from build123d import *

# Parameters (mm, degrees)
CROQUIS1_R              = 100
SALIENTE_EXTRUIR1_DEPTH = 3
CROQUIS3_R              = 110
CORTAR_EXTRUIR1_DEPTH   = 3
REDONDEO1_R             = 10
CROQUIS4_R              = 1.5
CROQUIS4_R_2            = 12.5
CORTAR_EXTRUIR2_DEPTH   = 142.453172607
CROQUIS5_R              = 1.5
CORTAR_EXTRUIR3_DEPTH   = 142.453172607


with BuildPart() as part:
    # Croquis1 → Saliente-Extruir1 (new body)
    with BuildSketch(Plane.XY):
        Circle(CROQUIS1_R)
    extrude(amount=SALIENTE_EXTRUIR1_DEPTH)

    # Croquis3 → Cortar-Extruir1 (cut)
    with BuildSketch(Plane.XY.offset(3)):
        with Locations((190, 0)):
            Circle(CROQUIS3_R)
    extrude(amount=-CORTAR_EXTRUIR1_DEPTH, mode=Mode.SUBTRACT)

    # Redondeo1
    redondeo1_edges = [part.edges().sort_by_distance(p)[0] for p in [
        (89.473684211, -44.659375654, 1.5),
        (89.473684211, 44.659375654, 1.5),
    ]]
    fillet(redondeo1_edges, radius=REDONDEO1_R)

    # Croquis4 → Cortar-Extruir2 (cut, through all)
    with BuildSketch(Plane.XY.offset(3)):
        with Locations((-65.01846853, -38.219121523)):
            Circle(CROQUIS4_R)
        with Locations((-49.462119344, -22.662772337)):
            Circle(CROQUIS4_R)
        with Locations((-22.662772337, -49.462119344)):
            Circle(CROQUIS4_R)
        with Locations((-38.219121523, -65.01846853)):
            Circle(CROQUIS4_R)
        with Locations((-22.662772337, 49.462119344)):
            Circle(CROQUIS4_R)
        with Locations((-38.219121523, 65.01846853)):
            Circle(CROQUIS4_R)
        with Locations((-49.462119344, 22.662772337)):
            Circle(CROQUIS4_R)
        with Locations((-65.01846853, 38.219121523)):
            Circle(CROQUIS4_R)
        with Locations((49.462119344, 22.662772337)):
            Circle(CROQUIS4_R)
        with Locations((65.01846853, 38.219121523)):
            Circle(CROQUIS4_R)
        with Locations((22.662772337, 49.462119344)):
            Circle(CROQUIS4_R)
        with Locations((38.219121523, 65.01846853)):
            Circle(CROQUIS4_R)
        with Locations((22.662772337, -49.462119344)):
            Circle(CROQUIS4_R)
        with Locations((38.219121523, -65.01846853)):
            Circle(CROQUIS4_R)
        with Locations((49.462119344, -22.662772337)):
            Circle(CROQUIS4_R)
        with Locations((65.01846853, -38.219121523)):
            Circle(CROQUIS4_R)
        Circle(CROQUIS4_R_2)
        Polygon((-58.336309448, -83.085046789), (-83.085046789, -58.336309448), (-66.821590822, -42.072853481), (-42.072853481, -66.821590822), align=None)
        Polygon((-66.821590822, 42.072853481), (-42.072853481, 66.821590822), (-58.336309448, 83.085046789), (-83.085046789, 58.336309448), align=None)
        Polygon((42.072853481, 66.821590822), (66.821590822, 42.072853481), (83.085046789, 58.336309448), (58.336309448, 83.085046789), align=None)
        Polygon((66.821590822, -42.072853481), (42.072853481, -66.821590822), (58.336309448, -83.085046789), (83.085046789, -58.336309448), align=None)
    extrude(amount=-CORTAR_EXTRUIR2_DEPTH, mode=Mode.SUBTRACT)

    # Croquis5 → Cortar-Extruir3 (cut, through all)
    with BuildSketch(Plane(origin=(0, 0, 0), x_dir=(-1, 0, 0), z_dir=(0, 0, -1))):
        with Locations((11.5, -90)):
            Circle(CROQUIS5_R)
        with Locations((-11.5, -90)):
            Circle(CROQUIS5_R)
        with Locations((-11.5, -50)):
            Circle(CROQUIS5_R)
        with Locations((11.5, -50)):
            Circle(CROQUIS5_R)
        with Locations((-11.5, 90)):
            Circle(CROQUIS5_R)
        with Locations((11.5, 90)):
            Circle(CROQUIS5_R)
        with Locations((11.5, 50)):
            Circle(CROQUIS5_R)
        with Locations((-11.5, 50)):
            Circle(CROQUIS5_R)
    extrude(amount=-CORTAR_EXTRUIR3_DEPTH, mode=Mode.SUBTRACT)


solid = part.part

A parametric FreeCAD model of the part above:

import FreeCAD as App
import Part
import Sketcher
from FreeCAD import Vector
Q = App.Units.Quantity


def edges_at(feature, points):
    """Names of the edges that pass closest to the given points."""
    edges = feature.Shape.Edges
    near = lambda p: min(range(len(edges)), key=lambda i: edges[i].distToShape(Part.Vertex(*p))[0])
    return sorted({f"Edge{near(p) + 1}" for p in points})


def add_polygon(sketch, points):
    """Adds a closed chain of lines whose ends are joined by coincident constraints."""
    first, n = sketch.GeometryCount, len(points)
    for a, b in zip(points, points[1:] + points[:1]):
        sketch.addGeometry(Part.LineSegment(App.Vector(*a, 0), App.Vector(*b, 0)), False)
    for i in range(n):
        sketch.addConstraint(Sketcher.Constraint("Coincident", first + i, 2, first + (i + 1) % n, 1))

doc = App.newDocument("Part")
params = doc.addObject("Spreadsheet::Sheet", "Params")
for row, (alias, value) in enumerate([
    ("sketch1_diameter", "200 mm"),
    ("pad1_length", "3 mm"),
    ("sketch2_diameter", "220 mm"),
    ("pocket1_length", "3 mm"),
    ("fillet_radius", "10 mm"),
    ("sketch3_diameter", "3 mm"),
    ("sketch3_diameter2", "25 mm"),
    ("sketch3_length", "35 mm"),
    ("sketch3_length2", "23 mm"),
    ("sketch4_diameter", "3 mm"),
], start=1):
    params.set(f"A{row}", alias)
    params.set(f"B{row}", "=" + value)
    params.setAlias(f"B{row}", alias)

body = doc.addObject("PartDesign::Body", "Body")

# Sketch on XY plane
sketch1 = doc.addObject("Sketcher::SketchObject", "Sketch")
body.addObject(sketch1)
sketch1.AttachmentSupport = (doc.XY_Plane, [""])
sketch1.MapMode = "FlatFace"
sketch1.addGeometry(Part.Circle(Vector(0, 0, 0), Vector(0, 0, 1), 100), False)
sketch1.addConstraint(Sketcher.Constraint("Coincident", 0, 3, -1, 1))
sketch1.addConstraint(Sketcher.Constraint("Diameter", 0, Q("200 mm")))
sketch1.setExpression("Constraints[1]", "Params.sketch1_diameter")
pad1 = doc.addObject("PartDesign::Pad", "Pad")
body.addObject(pad1)
pad1.Profile = sketch1
pad1.setExpression("Length", "Params.pad1_length")

# Sketch on XY plane
sketch2 = doc.addObject("Sketcher::SketchObject", "Sketch001")
body.addObject(sketch2)
sketch2.AttachmentSupport = (doc.XY_Plane, [""])
sketch2.MapMode = "FlatFace"
sketch2.AttachmentOffset = App.Placement(Vector(0, 0, 3), App.Rotation())
sketch2.addGeometry(Part.Circle(Vector(190, 0, 0), Vector(0, 0, 1), 110), False)
sketch2.addConstraint(Sketcher.Constraint("PointOnObject", 0, 3, -1))
sketch2.addConstraint(Sketcher.Constraint("Diameter", 0, Q("220 mm")))
sketch2.addConstraint(Sketcher.Constraint("DistanceX", -1, 1, 0, 3, Q("190 mm")))
sketch2.setExpression("Constraints[1]", "Params.sketch2_diameter")
pocket1 = doc.addObject("PartDesign::Pocket", "Pocket")
body.addObject(pocket1)
pocket1.Profile = sketch2
pocket1.setExpression("Length", "Params.pocket1_length")
doc.recompute()

fillet = doc.addObject("PartDesign::Fillet", "Fillet")
body.addObject(fillet)
fillet.Base = (pocket1, edges_at(pocket1, [(89.474, -44.659, 1.5), (89.474, 44.659, 1.5)]))
fillet.setExpression("Radius", "Params.fillet_radius")

# Sketch on XY plane
sketch3 = doc.addObject("Sketcher::SketchObject", "Sketch002")
body.addObject(sketch3)
sketch3.AttachmentSupport = (doc.XY_Plane, [""])
sketch3.MapMode = "FlatFace"
sketch3.AttachmentOffset = App.Placement(Vector(0, 0, 3), App.Rotation())
sketch3.addGeometry(Part.Circle(Vector(-65, -38.2, 0), Vector(0, 0, 1), 1.5), False)  # 0
sketch3.addGeometry(Part.Circle(Vector(-49.5, -22.7, 0), Vector(0, 0, 1), 1.5), False)  # 1
sketch3.addGeometry(Part.Circle(Vector(-22.7, -49.5, 0), Vector(0, 0, 1), 1.5), False)  # 2
sketch3.addGeometry(Part.Circle(Vector(-38.2, -65, 0), Vector(0, 0, 1), 1.5), False)  # 3
sketch3.addGeometry(Part.Circle(Vector(-22.7, 49.5, 0), Vector(0, 0, 1), 1.5), False)  # 4
sketch3.addGeometry(Part.Circle(Vector(-38.2, 65, 0), Vector(0, 0, 1), 1.5), False)  # 5
sketch3.addGeometry(Part.Circle(Vector(-49.5, 22.7, 0), Vector(0, 0, 1), 1.5), False)  # 6
sketch3.addGeometry(Part.Circle(Vector(-65, 38.2, 0), Vector(0, 0, 1), 1.5), False)  # 7
sketch3.addGeometry(Part.Circle(Vector(49.5, 22.7, 0), Vector(0, 0, 1), 1.5), False)  # 8
sketch3.addGeometry(Part.Circle(Vector(65, 38.2, 0), Vector(0, 0, 1), 1.5), False)  # 9
sketch3.addGeometry(Part.Circle(Vector(22.7, 49.5, 0), Vector(0, 0, 1), 1.5), False)  # 10
sketch3.addGeometry(Part.Circle(Vector(38.2, 65, 0), Vector(0, 0, 1), 1.5), False)  # 11
sketch3.addGeometry(Part.Circle(Vector(22.7, -49.5, 0), Vector(0, 0, 1), 1.5), False)  # 12
sketch3.addGeometry(Part.Circle(Vector(38.2, -65, 0), Vector(0, 0, 1), 1.5), False)  # 13
sketch3.addGeometry(Part.Circle(Vector(49.5, -22.7, 0), Vector(0, 0, 1), 1.5), False)  # 14
sketch3.addGeometry(Part.Circle(Vector(65, -38.2, 0), Vector(0, 0, 1), 1.5), False)  # 15
sketch3.addGeometry(Part.Circle(Vector(0, 0, 0), Vector(0, 0, 1), 12.5), False)  # 16
add_polygon(sketch3, [(-83.1, -58.3), (-58.3, -83.1), (-42.1, -66.8), (-66.8, -42.1)])  # lines 17-20
add_polygon(sketch3, [(-66.8, 42.1), (-42.1, 66.8), (-58.3, 83.1), (-83.1, 58.3)])  # lines 21-24
add_polygon(sketch3, [(42.1, 66.8), (66.8, 42.1), (83.1, 58.3), (58.3, 83.1)])  # lines 25-28
add_polygon(sketch3, [(66.8, -42.1), (42.1, -66.8), (58.3, -83.1), (83.1, -58.3)])  # lines 29-32
sketch3.addConstraint(Sketcher.Constraint("Coincident", 16, 3, -1, 1))
sketch3.addConstraint(Sketcher.Constraint("Equal", 0, 1))
sketch3.addConstraint(Sketcher.Constraint("Equal", 1, 2))
sketch3.addConstraint(Sketcher.Constraint("Equal", 2, 3))
sketch3.addConstraint(Sketcher.Constraint("Equal", 3, 4))
sketch3.addConstraint(Sketcher.Constraint("Equal", 4, 5))
sketch3.addConstraint(Sketcher.Constraint("Equal", 5, 6))
sketch3.addConstraint(Sketcher.Constraint("Equal", 6, 7))
sketch3.addConstraint(Sketcher.Constraint("Equal", 7, 8))
sketch3.addConstraint(Sketcher.Constraint("Equal", 8, 9))
sketch3.addConstraint(Sketcher.Constraint("Equal", 9, 10))
sketch3.addConstraint(Sketcher.Constraint("Equal", 10, 11))
sketch3.addConstraint(Sketcher.Constraint("Equal", 11, 12))
sketch3.addConstraint(Sketcher.Constraint("Equal", 12, 13))
sketch3.addConstraint(Sketcher.Constraint("Equal", 13, 14))
sketch3.addConstraint(Sketcher.Constraint("Equal", 14, 15))
sketch3.addConstraint(Sketcher.Constraint("Symmetric", 1, 3, 8, 3, -1, 1))
sketch3.addConstraint(Sketcher.Constraint("Symmetric", 0, 3, 9, 3, -1, 1))
sketch3.addConstraint(Sketcher.Constraint("Symmetric", 2, 3, 10, 3, -1, 1))
sketch3.addConstraint(Sketcher.Constraint("Symmetric", 3, 3, 11, 3, -1, 1))
sketch3.addConstraint(Sketcher.Constraint("Symmetric", 4, 3, 12, 3, -1, 1))
sketch3.addConstraint(Sketcher.Constraint("Symmetric", 5, 3, 13, 3, -1, 1))
sketch3.addConstraint(Sketcher.Constraint("Symmetric", 6, 3, 14, 3, -1, 1))
sketch3.addConstraint(Sketcher.Constraint("Symmetric", 7, 3, 15, 3, -1, 1))
sketch3.addConstraint(Sketcher.Constraint("Symmetric", 19, 2, 25, 2, -1, 1))
sketch3.addConstraint(Sketcher.Constraint("Symmetric", 20, 2, 26, 2, -1, 1))
sketch3.addConstraint(Sketcher.Constraint("Symmetric", 17, 2, 27, 2, -1, 1))
sketch3.addConstraint(Sketcher.Constraint("Symmetric", 18, 2, 28, 2, -1, 1))
sketch3.addConstraint(Sketcher.Constraint("Symmetric", 21, 2, 29, 2, -1, 1))
sketch3.addConstraint(Sketcher.Constraint("Symmetric", 22, 2, 30, 2, -1, 1))
sketch3.addConstraint(Sketcher.Constraint("Symmetric", 23, 2, 31, 2, -1, 1))
sketch3.addConstraint(Sketcher.Constraint("Symmetric", 24, 2, 32, 2, -1, 1))
sketch3.addConstraint(Sketcher.Constraint("Symmetric", 6, 3, 8, 3, -2))
sketch3.addConstraint(Sketcher.Constraint("Symmetric", 7, 3, 9, 3, -2))
sketch3.addConstraint(Sketcher.Constraint("Symmetric", 4, 3, 10, 3, -2))
sketch3.addConstraint(Sketcher.Constraint("Symmetric", 5, 3, 11, 3, -2))
sketch3.addConstraint(Sketcher.Constraint("Symmetric", 24, 2, 25, 2, -2))
sketch3.addConstraint(Sketcher.Constraint("Symmetric", 23, 2, 26, 2, -2))
sketch3.addConstraint(Sketcher.Constraint("Symmetric", 22, 2, 27, 2, -2))
sketch3.addConstraint(Sketcher.Constraint("Symmetric", 21, 2, 28, 2, -2))
sketch3.addConstraint(Sketcher.Constraint("Perpendicular", 17, 18))
sketch3.addConstraint(Sketcher.Constraint("Perpendicular", 18, 19))
sketch3.addConstraint(Sketcher.Constraint("Perpendicular", 19, 20))
sketch3.addConstraint(Sketcher.Constraint("Parallel", 20, 21))
sketch3.addConstraint(Sketcher.Constraint("Diameter", 0, Q("3 mm")))
sketch3.addConstraint(Sketcher.Constraint("Diameter", 16, Q("25 mm")))
sketch3.addConstraint(Sketcher.Constraint("Distance", 17, Q("35 mm")))
sketch3.addConstraint(Sketcher.Constraint("Distance", 18, Q("23 mm")))
sketch3.addConstraint(Sketcher.Constraint("DistanceX", 0, 3, -1, 1, Q("65.018469 mm")))
sketch3.addConstraint(Sketcher.Constraint("DistanceY", 0, 3, -1, 1, Q("38.219122 mm")))
sketch3.addConstraint(Sketcher.Constraint("DistanceX", 1, 3, -1, 1, Q("49.462119 mm")))
sketch3.addConstraint(Sketcher.Constraint("DistanceY", 2, 3, -1, 1, Q("49.462119 mm")))
sketch3.addConstraint(Sketcher.Constraint("DistanceX", 3, 3, -1, 1, Q("38.219122 mm")))
sketch3.addConstraint(Sketcher.Constraint("DistanceY", 3, 3, -1, 1, Q("65.018469 mm")))
sketch3.addConstraint(Sketcher.Constraint("DistanceX", 17, 2, -1, 1, Q("58.336309 mm")))
sketch3.addConstraint(Sketcher.Constraint("DistanceY", 18, 2, -1, 1, Q("66.821591 mm")))
sketch3.addConstraint(Sketcher.Constraint("DistanceY", 0, 3, 1, 3, Q("15.556349 mm")))
sketch3.addConstraint(Sketcher.Constraint("DistanceX", 3, 3, 2, 3, Q("15.556349 mm")))
sketch3.setExpression("Constraints[60]", "Params.sketch3_diameter")
sketch3.setExpression("Constraints[61]", "Params.sketch3_diameter2")
sketch3.setExpression("Constraints[62]", "Params.sketch3_length")
sketch3.setExpression("Constraints[63]", "Params.sketch3_length2")
pocket2 = doc.addObject("PartDesign::Pocket", "Pocket001")
body.addObject(pocket2)
pocket2.Profile = sketch3
pocket2.Type = "ThroughAll"

# Sketch on XY plane
sketch4 = doc.addObject("Sketcher::SketchObject", "Sketch003")
body.addObject(sketch4)
sketch4.AttachmentSupport = (doc.XY_Plane, [""])
sketch4.MapMode = "FlatFace"
sketch4.addGeometry(Part.Circle(Vector(-11.5, -90, 0), Vector(0, 0, 1), 1.5), False)
sketch4.addGeometry(Part.Circle(Vector(11.5, -90, 0), Vector(0, 0, 1), 1.5), False)
sketch4.addGeometry(Part.Circle(Vector(11.5, -50, 0), Vector(0, 0, 1), 1.5), False)
sketch4.addGeometry(Part.Circle(Vector(-11.5, -50, 0), Vector(0, 0, 1), 1.5), False)
sketch4.addGeometry(Part.Circle(Vector(11.5, 90, 0), Vector(0, 0, 1), 1.5), False)
sketch4.addGeometry(Part.Circle(Vector(-11.5, 90, 0), Vector(0, 0, 1), 1.5), False)
sketch4.addGeometry(Part.Circle(Vector(-11.5, 50, 0), Vector(0, 0, 1), 1.5), False)
sketch4.addGeometry(Part.Circle(Vector(11.5, 50, 0), Vector(0, 0, 1), 1.5), False)
sketch4.addConstraint(Sketcher.Constraint("Equal", 0, 1))
sketch4.addConstraint(Sketcher.Constraint("Equal", 1, 2))
sketch4.addConstraint(Sketcher.Constraint("Equal", 2, 3))
sketch4.addConstraint(Sketcher.Constraint("Equal", 3, 4))
sketch4.addConstraint(Sketcher.Constraint("Equal", 4, 5))
sketch4.addConstraint(Sketcher.Constraint("Equal", 5, 6))
sketch4.addConstraint(Sketcher.Constraint("Equal", 6, 7))
sketch4.addConstraint(Sketcher.Constraint("Symmetric", 0, 3, 4, 3, -1, 1))
sketch4.addConstraint(Sketcher.Constraint("Symmetric", 1, 3, 5, 3, -1, 1))
sketch4.addConstraint(Sketcher.Constraint("Symmetric", 2, 3, 6, 3, -1, 1))
sketch4.addConstraint(Sketcher.Constraint("Symmetric", 3, 3, 7, 3, -1, 1))
sketch4.addConstraint(Sketcher.Constraint("Symmetric", 0, 3, 1, 3, -2))
sketch4.addConstraint(Sketcher.Constraint("Symmetric", 2, 3, 3, 3, -2))
sketch4.addConstraint(Sketcher.Constraint("Vertical", 1, 3, 2, 3))
sketch4.addConstraint(Sketcher.Constraint("Diameter", 0, Q("3 mm")))
sketch4.addConstraint(Sketcher.Constraint("DistanceY", 0, 3, -1, 1, Q("90 mm")))
sketch4.addConstraint(Sketcher.Constraint("DistanceY", 2, 3, -1, 1, Q("50 mm")))
sketch4.addConstraint(Sketcher.Constraint("DistanceX", 0, 3, 1, 3, Q("23 mm")))
sketch4.setExpression("Constraints[14]", "Params.sketch4_diameter")
pocket3 = doc.addObject("PartDesign::Pocket", "Pocket002")
body.addObject(pocket3)
pocket3.Profile = sketch4
pocket3.Type = "ThroughAll"
pocket3.Reversed = True

doc.recompute()
